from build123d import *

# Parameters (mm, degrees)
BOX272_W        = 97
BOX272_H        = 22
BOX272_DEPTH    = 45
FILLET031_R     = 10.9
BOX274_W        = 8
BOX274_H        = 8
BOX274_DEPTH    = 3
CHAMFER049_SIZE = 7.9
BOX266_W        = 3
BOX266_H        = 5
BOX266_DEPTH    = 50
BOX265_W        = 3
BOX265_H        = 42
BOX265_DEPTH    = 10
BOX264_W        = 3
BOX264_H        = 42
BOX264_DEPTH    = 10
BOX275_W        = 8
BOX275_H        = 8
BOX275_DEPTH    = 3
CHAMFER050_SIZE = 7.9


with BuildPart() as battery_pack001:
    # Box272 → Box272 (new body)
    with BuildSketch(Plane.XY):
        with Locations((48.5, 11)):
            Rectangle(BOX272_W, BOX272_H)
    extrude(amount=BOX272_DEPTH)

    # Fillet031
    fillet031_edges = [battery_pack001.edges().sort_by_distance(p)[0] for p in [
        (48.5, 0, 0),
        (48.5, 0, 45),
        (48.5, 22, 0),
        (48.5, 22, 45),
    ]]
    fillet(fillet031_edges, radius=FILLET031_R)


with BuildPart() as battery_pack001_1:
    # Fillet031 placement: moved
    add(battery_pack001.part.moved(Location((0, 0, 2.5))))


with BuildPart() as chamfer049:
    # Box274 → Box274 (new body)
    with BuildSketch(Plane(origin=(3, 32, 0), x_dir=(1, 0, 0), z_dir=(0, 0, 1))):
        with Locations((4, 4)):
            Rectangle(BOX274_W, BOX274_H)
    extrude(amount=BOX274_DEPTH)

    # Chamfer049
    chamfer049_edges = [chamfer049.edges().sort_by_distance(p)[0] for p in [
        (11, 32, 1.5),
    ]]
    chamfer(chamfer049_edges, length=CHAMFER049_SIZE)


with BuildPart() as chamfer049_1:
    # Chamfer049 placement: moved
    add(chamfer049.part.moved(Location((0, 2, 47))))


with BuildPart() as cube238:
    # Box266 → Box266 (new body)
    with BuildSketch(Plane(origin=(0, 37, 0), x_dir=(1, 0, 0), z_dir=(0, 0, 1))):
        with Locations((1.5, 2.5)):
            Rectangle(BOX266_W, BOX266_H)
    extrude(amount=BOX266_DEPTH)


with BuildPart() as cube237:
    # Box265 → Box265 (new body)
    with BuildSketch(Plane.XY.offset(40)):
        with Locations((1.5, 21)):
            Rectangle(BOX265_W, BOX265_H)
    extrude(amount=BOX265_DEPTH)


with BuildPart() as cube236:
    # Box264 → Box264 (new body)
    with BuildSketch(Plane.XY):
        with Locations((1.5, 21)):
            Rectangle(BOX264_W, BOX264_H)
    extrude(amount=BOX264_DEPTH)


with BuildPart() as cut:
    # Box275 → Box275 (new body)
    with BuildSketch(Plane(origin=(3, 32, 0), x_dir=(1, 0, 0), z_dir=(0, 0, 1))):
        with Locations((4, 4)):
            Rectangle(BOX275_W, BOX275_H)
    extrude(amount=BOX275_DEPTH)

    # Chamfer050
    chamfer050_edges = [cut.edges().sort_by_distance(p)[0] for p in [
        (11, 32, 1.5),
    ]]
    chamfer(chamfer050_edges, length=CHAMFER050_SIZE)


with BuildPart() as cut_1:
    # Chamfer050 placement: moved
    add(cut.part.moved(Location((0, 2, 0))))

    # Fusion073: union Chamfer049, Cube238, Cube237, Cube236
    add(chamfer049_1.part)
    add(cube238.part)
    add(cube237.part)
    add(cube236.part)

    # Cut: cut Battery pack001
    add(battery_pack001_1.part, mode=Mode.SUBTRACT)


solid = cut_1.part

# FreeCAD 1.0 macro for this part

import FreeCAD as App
import Part
import Sketcher


def edges_at(feature, points):
    """Names of the edges that pass closest to the given points."""
    edges = feature.Shape.Edges
    near = lambda p: min(range(len(edges)), key=lambda i: edges[i].distToShape(Part.Vertex(*p))[0])
    return sorted({f"Edge{near(p) + 1}" for p in points})


def add_polygon(sketch, points):
    """Adds a closed chain of lines whose ends are joined by coincident constraints."""
    first, n = sketch.GeometryCount, len(points)
    for a, b in zip(points, points[1:] + points[:1]):
        sketch.addGeometry(Part.LineSegment(App.Vector(*a, 0), App.Vector(*b, 0)), False)
    for i in range(n):
        sketch.addConstraint(Sketcher.Constraint("Coincident", first + i, 2, first + (i + 1) % n, 1))

doc = App.newDocument("Part")
params = doc.addObject("Spreadsheet::Sheet", "Params")
for row, (alias, value) in enumerate([
    ("sketch1_width", "97 mm"),
    ("sketch1_height", "22 mm"),
    ("pad1_length", "45 mm"),
    ("fillet_radius", "10.9 mm"),
    ("sketch2_width", "8 mm"),
    ("pad2_length", "3 mm"),
    ("chamfer_size", "7.9 mm"),
    ("sketch3_width", "3 mm"),
    ("sketch3_height", "5 mm"),
    ("pad3_length", "50 mm"),
    ("sketch4_width", "3 mm"),
    ("sketch4_height", "42 mm"),
    ("pad4_length", "10 mm"),
    ("sketch5_width", "3 mm"),
    ("sketch5_height", "42 mm"),
    ("pad5_length", "10 mm"),
    ("sketch6_width", "8 mm"),
    ("pad6_length", "3 mm"),
    ("chamfer2_size", "7.9 mm"),
], start=1):
    params.set(f"A{row}", alias)
    params.set(f"B{row}", "=" + value)
    params.setAlias(f"B{row}", alias)

body = doc.addObject("PartDesign::Body", "Body")

# Sketch on XY plane
sketch1 = body.newObject("Sketcher::SketchObject", "Sketch")
sketch1.AttachmentSupport = (doc.getObject("XY_Plane"), [""])
sketch1.MapMode = "FlatFace"
add_polygon(sketch1, [(0, 22), (0, 0), (97, 0), (97, 22)])  # lines 0-3
sketch1.addConstraint(Sketcher.Constraint("Vertical", 0))
sketch1.addConstraint(Sketcher.Constraint("Horizontal", 1))
sketch1.addConstraint(Sketcher.Constraint("Vertical", 2))
sketch1.addConstraint(Sketcher.Constraint("Horizontal", 3))
sketch1.addConstraint(Sketcher.Constraint("Coincident", 0, 2, -1, 1))
sketch1.addConstraint(Sketcher.Constraint("DistanceX", 1, 1, 1, 2, 97.0))
sketch1.addConstraint(Sketcher.Constraint("DistanceY", 0, 2, 0, 1, 22.0))
sketch1.setExpression("Constraints[9]", "Params.sketch1_width")
sketch1.setExpression("Constraints[10]", "Params.sketch1_height")
pad1 = body.newObject("PartDesign::Pad", "Pad")
pad1.Profile = sketch1
pad1.setExpression("Length", "Params.pad1_length")
doc.recompute()

fillet = body.newObject("PartDesign::Fillet", "Fillet")
fillet.Base = (pad1, edges_at(pad1, [
    (48.5, 0, 0),
    (48.5, 0, 45),
    (48.5, 22, 0),
    (48.5, 22, 45),
]))
fillet.setExpression("Radius", "Params.fillet_radius")
body2 = doc.addObject("PartDesign::Body", "Body001")
doc.recompute()

body.Placement = App.Placement(App.Vector(0, 0, 2.5), App.Rotation(App.Vector(0, 0, 1), 0))
boolean = body2.newObject("PartDesign::Boolean", "Boolean")
boolean.Type = "Fuse"
boolean.addObjects([body])
body3 = doc.addObject("PartDesign::Body", "Body002")

# Sketch on XY plane
sketch2 = body3.newObject("Sketcher::SketchObject", "Sketch001")
sketch2.AttachmentSupport = (doc.getObject("XY_Plane002"), [""])
sketch2.MapMode = "FlatFace"
add_polygon(sketch2, [(3, 40), (3, 32), (11, 32), (11, 40)])  # lines 0-3
sketch2.addConstraint(Sketcher.Constraint("Vertical", 0))
sketch2.addConstraint(Sketcher.Constraint("Horizontal", 1))
sketch2.addConstraint(Sketcher.Constraint("Vertical", 2))
sketch2.addConstraint(Sketcher.Constraint("Horizontal", 3))
sketch2.addConstraint(Sketcher.Constraint("Equal", 3, 0))
sketch2.addConstraint(Sketcher.Constraint("DistanceX", 1, 1, 1, 2, 8.0))
sketch2.addConstraint(Sketcher.Constraint("DistanceX", -1, 1, 0, 2, 3.0))
sketch2.addConstraint(Sketcher.Constraint("DistanceY", -1, 1, 0, 2, 32.0))
sketch2.setExpression("Constraints[9]", "Params.sketch2_width")
pad2 = body3.newObject("PartDesign::Pad", "Pad001")
pad2.Profile = sketch2
pad2.setExpression("Length", "Params.pad2_length")
doc.recompute()

chamfer = body3.newObject("PartDesign::Chamfer", "Chamfer")
chamfer.Base = (pad2, edges_at(pad2, [(11, 32, 1.5)]))
chamfer.setExpression("Size", "Params.chamfer_size")
body4 = doc.addObject("PartDesign::Body", "Body003")
doc.recompute()

body3.Placement = App.Placement(App.Vector(0, 2, 47), App.Rotation(App.Vector(0, 0, 1), 0))
boolean2 = body4.newObject("PartDesign::Boolean", "Boolean001")
boolean2.Type = "Fuse"
boolean2.addObjects([body3])
body5 = doc.addObject("PartDesign::Body", "Body004")

# Sketch on XY plane
sketch3 = body5.newObject("Sketcher::SketchObject", "Sketch002")
sketch3.AttachmentSupport = (doc.getObject("XY_Plane004"), [""])
sketch3.MapMode = "FlatFace"
add_polygon(sketch3, [(0, 42), (0, 37), (3, 37), (3, 42)])  # lines 0-3
sketch3.addConstraint(Sketcher.Constraint("Vertical", 0))
sketch3.addConstraint(Sketcher.Constraint("Horizontal", 1))
sketch3.addConstraint(Sketcher.Constraint("Vertical", 2))
sketch3.addConstraint(Sketcher.Constraint("Horizontal", 3))
sketch3.addConstraint(Sketcher.Constraint("PointOnObject", 0, 2, -2))
sketch3.addConstraint(Sketcher.Constraint("DistanceX", 1, 1, 1, 2, 3.0))
sketch3.addConstraint(Sketcher.Constraint("DistanceY", 0, 2, 0, 1, 5.0))
sketch3.addConstraint(Sketcher.Constraint("DistanceY", -1, 1, 0, 2, 37.0))
sketch3.setExpression("Constraints[9]", "Params.sketch3_width")
sketch3.setExpression("Constraints[10]", "Params.sketch3_height")
pad3 = body5.newObject("PartDesign::Pad", "Pad002")
pad3.Profile = sketch3
pad3.setExpression("Length", "Params.pad3_length")
body6 = doc.addObject("PartDesign::Body", "Body005")

# Sketch on XY plane
sketch4 = body6.newObject("Sketcher::SketchObject", "Sketch003")
sketch4.AttachmentSupport = (doc.getObject("XY_Plane005"), [""])
sketch4.MapMode = "FlatFace"
sketch4.AttachmentOffset = App.Placement(App.Vector(0, 0, 40), App.Rotation())
add_polygon(sketch4, [(0, 42), (0, 0), (3, 0), (3, 42)])  # lines 0-3
sketch4.addConstraint(Sketcher.Constraint("Vertical", 0))
sketch4.addConstraint(Sketcher.Constraint("Horizontal", 1))
sketch4.addConstraint(Sketcher.Constraint("Vertical", 2))
sketch4.addConstraint(Sketcher.Constraint("Horizontal", 3))
sketch4.addConstraint(Sketcher.Constraint("Coincident", 0, 2, -1, 1))
sketch4.addConstraint(Sketcher.Constraint("DistanceX", 1, 1, 1, 2, 3.0))
sketch4.addConstraint(Sketcher.Constraint("DistanceY", 0, 2, 0, 1, 42.0))
sketch4.setExpression("Constraints[9]", "Params.sketch4_width")
sketch4.setExpression("Constraints[10]", "Params.sketch4_height")
pad4 = body6.newObject("PartDesign::Pad", "Pad003")
pad4.Profile = sketch4
pad4.setExpression("Length", "Params.pad4_length")
body7 = doc.addObject("PartDesign::Body", "Body006")

# Sketch on XY plane
sketch5 = body7.newObject("Sketcher::SketchObject", "Sketch004")
sketch5.AttachmentSupport = (doc.getObject("XY_Plane006"), [""])
sketch5.MapMode = "FlatFace"
add_polygon(sketch5, [(0, 42), (0, 0), (3, 0), (3, 42)])  # lines 0-3
sketch5.addConstraint(Sketcher.Constraint("Vertical", 0))
sketch5.addConstraint(Sketcher.Constraint("Horizontal", 1))
sketch5.addConstraint(Sketcher.Constraint("Vertical", 2))
sketch5.addConstraint(Sketcher.Constraint("Horizontal", 3))
sketch5.addConstraint(Sketcher.Constraint("Coincident", 0, 2, -1, 1))
sketch5.addConstraint(Sketcher.Constraint("DistanceX", 1, 1, 1, 2, 3.0))
sketch5.addConstraint(Sketcher.Constraint("DistanceY", 0, 2, 0, 1, 42.0))
sketch5.setExpression("Constraints[9]", "Params.sketch5_width")
sketch5.setExpression("Constraints[10]", "Params.sketch5_height")
pad5 = body7.newObject("PartDesign::Pad", "Pad004")
pad5.Profile = sketch5
pad5.setExpression("Length", "Params.pad5_length")
body8 = doc.addObject("PartDesign::Body", "Body007")

# Sketch on XY plane
sketch6 = body8.newObject("Sketcher::SketchObject", "Sketch005")
sketch6.AttachmentSupport = (doc.getObject("XY_Plane007"), [""])
sketch6.MapMode = "FlatFace"
add_polygon(sketch6, [(3, 40), (3, 32), (11, 32), (11, 40)])  # lines 0-3
sketch6.addConstraint(Sketcher.Constraint("Vertical", 0))
sketch6.addConstraint(Sketcher.Constraint("Horizontal", 1))
sketch6.addConstraint(Sketcher.Constraint("Vertical", 2))
sketch6.addConstraint(Sketcher.Constraint("Horizontal", 3))
sketch6.addConstraint(Sketcher.Constraint("Equal", 3, 0))
sketch6.addConstraint(Sketcher.Constraint("DistanceX", 1, 1, 1, 2, 8.0))
sketch6.addConstraint(Sketcher.Constraint("DistanceX", -1, 1, 0, 2, 3.0))
sketch6.addConstraint(Sketcher.Constraint("DistanceY", -1, 1, 0, 2, 32.0))
sketch6.setExpression("Constraints[9]", "Params.sketch6_width")
pad6 = body8.newObject("PartDesign::Pad", "Pad005")
pad6.Profile = sketch6
pad6.setExpression("Length", "Params.pad6_length")
doc.recompute()

chamfer2 = body8.newObject("PartDesign::Chamfer", "Chamfer001")
chamfer2.Base = (pad6, edges_at(pad6, [(11, 32, 1.5)]))
chamfer2.setExpression("Size", "Params.chamfer2_size")
body9 = doc.addObject("PartDesign::Body", "Body008")
body9.AllowCompound = True
doc.recompute()

body8.Placement = App.Placement(App.Vector(0, 2, 0), App.Rotation(App.Vector(0, 0, 1), 0))
boolean3 = body9.newObject("PartDesign::Boolean", "Boolean002")
boolean3.Type = "Fuse"
boolean3.addObjects([body8])
doc.recompute()

boolean4 = body9.newObject("PartDesign::Boolean", "Boolean003")
boolean4.Type = "Fuse"
boolean4.addObjects([body4])
doc.recompute()

boolean5 = body9.newObject("PartDesign::Boolean", "Boolean004")
boolean5.Type = "Fuse"
boolean5.addObjects([body5])
doc.recompute()

boolean6 = body9.newObject("PartDesign::Boolean", "Boolean005")
boolean6.Type = "Fuse"
boolean6.addObjects([body6])
doc.recompute()

boolean7 = body9.newObject("PartDesign::Boolean", "Boolean006")
boolean7.Type = "Fuse"
boolean7.addObjects([body7])
doc.recompute()

boolean8 = body9.newObject("PartDesign::Boolean", "Boolean007")
boolean8.Type = "Cut"
boolean8.addObjects([body2])

doc.recompute()
